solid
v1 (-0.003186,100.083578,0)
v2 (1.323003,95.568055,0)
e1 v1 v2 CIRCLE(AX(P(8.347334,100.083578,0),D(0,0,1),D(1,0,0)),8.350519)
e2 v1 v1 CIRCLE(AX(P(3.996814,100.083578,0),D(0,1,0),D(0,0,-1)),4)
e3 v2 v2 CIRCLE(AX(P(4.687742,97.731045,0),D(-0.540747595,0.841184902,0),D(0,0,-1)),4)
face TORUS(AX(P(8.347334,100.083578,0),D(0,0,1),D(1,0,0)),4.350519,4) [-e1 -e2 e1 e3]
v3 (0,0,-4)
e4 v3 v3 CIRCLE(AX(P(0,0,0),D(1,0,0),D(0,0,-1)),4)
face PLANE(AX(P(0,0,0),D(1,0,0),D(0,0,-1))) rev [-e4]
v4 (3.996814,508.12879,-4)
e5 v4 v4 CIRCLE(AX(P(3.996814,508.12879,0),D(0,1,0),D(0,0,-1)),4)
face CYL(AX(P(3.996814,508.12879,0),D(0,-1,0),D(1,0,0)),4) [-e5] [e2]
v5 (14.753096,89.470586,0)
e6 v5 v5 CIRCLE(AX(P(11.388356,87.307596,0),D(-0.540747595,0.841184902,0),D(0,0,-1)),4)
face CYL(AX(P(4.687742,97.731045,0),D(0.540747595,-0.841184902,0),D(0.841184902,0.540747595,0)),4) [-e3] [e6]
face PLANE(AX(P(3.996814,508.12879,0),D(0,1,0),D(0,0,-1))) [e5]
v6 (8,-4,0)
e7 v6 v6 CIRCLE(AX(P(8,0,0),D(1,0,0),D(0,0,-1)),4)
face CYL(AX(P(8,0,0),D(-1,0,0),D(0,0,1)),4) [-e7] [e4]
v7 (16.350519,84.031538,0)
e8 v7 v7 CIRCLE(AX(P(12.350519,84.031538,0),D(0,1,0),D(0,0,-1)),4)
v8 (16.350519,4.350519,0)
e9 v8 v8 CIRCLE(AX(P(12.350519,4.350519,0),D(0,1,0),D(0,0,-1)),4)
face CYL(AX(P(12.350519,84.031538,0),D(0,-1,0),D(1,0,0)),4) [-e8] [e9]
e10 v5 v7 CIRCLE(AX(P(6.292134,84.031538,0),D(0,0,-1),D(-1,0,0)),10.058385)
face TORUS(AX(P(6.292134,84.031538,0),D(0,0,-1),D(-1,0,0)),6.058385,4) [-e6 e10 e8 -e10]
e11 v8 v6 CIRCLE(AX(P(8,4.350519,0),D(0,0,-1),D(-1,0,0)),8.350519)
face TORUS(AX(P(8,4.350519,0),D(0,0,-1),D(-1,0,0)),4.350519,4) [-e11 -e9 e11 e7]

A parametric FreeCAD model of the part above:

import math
import FreeCAD as App
import Part
import Sketcher

V = App.Vector
Q = App.Units.Quantity

doc = App.newDocument("Part")
body = doc.addObject("PartDesign::Body", "Body")

# Sketch on YZ plane
sketch1 = body.newObject("Sketcher::SketchObject", "Sketch")
sketch1.AttachmentSupport = (doc.getObject("YZ_Plane"), [""])
sketch1.MapMode = "FlatFace"
sketch1.addGeometry(Part.Circle(V(0, 0, 0), V(0, 0, 1), 4), False)
sketch1.addConstraint(Sketcher.Constraint("Coincident", 0, 3, -1, 1))
sketch1.addConstraint(Sketcher.Constraint("Diameter", 0, Q("8 mm")))

# Sketch on XY plane
sketch2 = body.newObject("Sketcher::SketchObject", "Sketch001")
sketch2.AttachmentSupport = (doc.getObject("XY_Plane"), [""])
sketch2.MapMode = "FlatFace"
sketch2.addGeometry(Part.LineSegment(V(0, 0, 0), V(8, 0, 0)), False)
sketch2.addGeometry(Part.ArcOfCircle(Part.Circle(V(8, 4.350519, 0), V(0, 0, 1), 4.350519), math.radians(-90), math.radians(0)), False)
sketch2.addGeometry(Part.LineSegment(V(12.350519, 4.350519, 0), V(12.350519, 84.031538, 0)), False)
sketch2.addGeometry(Part.ArcOfCircle(Part.Circle(V(6.292134, 84.031538, 0), V(0, 0, 1), 6.058385), math.radians(0), math.radians(32.734545)), False)
sketch2.addGeometry(Part.LineSegment(V(11.388356, 87.307596, 0), V(4.687742, 97.731045, 0)), False)
sketch2.addGeometry(Part.ArcOfCircle(Part.Circle(V(8.347334, 100.083578, 0), V(0, 0, 1), 4.350519), math.radians(180), math.radians(212.734545)), False)
sketch2.addGeometry(Part.LineSegment(V(3.996814, 100.083578, 0), V(3.996814, 508.12879, 0)), False)
sketch2.addConstraint(Sketcher.Constraint("Tangent", 0, 2, 1, 1))
sketch2.addConstraint(Sketcher.Constraint("Tangent", 1, 2, 2, 1))
sketch2.addConstraint(Sketcher.Constraint("Tangent", 2, 2, 3, 1))
sketch2.addConstraint(Sketcher.Constraint("Tangent", 3, 2, 4, 1))
sketch2.addConstraint(Sketcher.Constraint("Tangent", 4, 2, 5, 2))
sketch2.addConstraint(Sketcher.Constraint("Tangent", 5, 1, 6, 1))
sketch2.addConstraint(Sketcher.Constraint("Horizontal", 0))
sketch2.addConstraint(Sketcher.Constraint("Vertical", 2))
sketch2.addConstraint(Sketcher.Constraint("Vertical", 6))
sketch2.addConstraint(Sketcher.Constraint("Coincident", 0, 1, -1, 1))
sketch2.addConstraint(Sketcher.Constraint("Equal", 1, 5))
sketch2.addConstraint(Sketcher.Constraint("DistanceX", 0, 1, 0, 2, Q("8 mm")))
sketch2.addConstraint(Sketcher.Constraint("Radius", 1, Q("4.350519 mm")))
sketch2.addConstraint(Sketcher.Constraint("Radius", 3, Q("6.058385 mm")))
sketch2.addConstraint(Sketcher.Constraint("DistanceY", 2, 1, 2, 2, Q("79.681019 mm")))
sketch2.addConstraint(Sketcher.Constraint("DistanceY", 6, 1, 6, 2, Q("408.045211 mm")))
sketch2.addConstraint(Sketcher.Constraint("DistanceX", 3, 3, 5, 3, Q("2.055199 mm")))
sketch2.addConstraint(Sketcher.Constraint("Distance", 4, Q("12.391389 mm")))
doc.recompute()

additivepipe = body.newObject("PartDesign::AdditivePipe", "AdditivePipe")
additivepipe.Profile = sketch1
additivepipe.Spine = (sketch2, ["Edge1", "Edge2", "Edge3", "Edge4", "Edge5", "Edge6", "Edge7"])

doc.recompute()
